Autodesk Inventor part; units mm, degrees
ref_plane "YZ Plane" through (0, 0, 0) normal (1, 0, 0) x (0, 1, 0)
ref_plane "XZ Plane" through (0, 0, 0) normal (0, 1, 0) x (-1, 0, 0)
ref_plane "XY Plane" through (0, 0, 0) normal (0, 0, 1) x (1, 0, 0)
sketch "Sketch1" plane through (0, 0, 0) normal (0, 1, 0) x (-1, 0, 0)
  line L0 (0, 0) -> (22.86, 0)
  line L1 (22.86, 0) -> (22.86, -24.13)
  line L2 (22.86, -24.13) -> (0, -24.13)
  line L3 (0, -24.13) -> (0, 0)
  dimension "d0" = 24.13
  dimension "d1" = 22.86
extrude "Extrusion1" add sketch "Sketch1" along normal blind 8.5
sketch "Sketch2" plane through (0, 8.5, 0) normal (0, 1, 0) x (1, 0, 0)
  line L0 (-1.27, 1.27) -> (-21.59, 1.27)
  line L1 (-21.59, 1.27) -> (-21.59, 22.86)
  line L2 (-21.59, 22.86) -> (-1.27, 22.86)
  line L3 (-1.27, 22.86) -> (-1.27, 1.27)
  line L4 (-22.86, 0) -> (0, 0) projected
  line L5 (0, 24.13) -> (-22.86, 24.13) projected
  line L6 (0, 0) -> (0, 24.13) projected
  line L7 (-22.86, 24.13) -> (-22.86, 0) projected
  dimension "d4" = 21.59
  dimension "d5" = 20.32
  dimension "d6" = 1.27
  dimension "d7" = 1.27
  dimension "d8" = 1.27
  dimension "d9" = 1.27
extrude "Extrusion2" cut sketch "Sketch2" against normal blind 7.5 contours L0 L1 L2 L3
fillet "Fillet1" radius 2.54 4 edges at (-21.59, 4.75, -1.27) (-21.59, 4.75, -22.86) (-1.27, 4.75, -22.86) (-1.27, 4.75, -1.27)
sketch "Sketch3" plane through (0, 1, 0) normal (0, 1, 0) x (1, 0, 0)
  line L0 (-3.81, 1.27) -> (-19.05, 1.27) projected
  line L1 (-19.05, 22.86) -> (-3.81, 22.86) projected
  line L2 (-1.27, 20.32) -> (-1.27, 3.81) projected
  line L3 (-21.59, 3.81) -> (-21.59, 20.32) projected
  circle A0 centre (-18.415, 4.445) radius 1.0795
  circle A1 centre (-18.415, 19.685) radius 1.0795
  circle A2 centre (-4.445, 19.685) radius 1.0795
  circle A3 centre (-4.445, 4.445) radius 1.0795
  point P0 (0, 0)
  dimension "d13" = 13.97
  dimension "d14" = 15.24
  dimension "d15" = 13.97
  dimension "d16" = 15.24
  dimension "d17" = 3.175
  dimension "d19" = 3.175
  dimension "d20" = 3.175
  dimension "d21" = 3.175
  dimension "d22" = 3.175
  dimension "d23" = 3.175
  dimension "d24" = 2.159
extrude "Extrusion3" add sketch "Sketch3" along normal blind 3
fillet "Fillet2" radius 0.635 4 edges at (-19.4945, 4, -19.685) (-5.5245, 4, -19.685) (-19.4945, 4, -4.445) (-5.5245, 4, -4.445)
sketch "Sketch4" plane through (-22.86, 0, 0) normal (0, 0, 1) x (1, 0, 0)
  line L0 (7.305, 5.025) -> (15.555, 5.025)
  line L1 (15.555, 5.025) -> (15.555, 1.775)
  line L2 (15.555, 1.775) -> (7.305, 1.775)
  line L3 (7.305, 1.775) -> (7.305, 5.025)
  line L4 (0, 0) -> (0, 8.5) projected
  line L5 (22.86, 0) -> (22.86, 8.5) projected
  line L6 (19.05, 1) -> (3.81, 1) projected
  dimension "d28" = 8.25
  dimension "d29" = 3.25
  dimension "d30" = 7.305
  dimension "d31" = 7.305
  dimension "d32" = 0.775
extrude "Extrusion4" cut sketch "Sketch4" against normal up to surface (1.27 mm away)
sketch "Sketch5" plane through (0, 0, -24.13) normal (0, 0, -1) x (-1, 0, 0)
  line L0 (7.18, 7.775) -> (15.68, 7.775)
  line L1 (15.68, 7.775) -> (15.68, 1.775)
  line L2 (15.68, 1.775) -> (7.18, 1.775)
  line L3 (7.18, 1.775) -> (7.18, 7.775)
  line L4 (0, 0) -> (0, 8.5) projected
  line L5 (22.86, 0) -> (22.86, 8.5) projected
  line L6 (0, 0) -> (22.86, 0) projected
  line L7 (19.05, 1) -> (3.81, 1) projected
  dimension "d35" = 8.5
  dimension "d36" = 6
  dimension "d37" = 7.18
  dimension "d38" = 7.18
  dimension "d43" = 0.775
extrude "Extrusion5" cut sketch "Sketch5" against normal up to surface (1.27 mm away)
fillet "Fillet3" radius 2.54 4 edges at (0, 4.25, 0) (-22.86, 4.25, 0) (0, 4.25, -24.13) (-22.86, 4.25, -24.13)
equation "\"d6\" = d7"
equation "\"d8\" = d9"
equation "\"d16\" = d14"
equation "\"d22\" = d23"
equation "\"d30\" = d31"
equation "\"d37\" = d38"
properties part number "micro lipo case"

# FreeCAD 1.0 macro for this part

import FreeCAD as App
import Part
import Sketcher
Q = App.Units.Quantity


def edges_at(feature, points):
    """Names of the edges that pass closest to the given points."""
    edges = feature.Shape.Edges
    near = lambda p: min(range(len(edges)), key=lambda i: edges[i].distToShape(Part.Vertex(*p))[0])
    return sorted({f"Edge{near(p) + 1}" for p in points})


def add_polygon(sketch, points):
    """Adds a closed chain of lines whose ends are joined by coincident constraints."""
    first, n = sketch.GeometryCount, len(points)
    for a, b in zip(points, points[1:] + points[:1]):
        sketch.addGeometry(Part.LineSegment(App.Vector(*a, 0), App.Vector(*b, 0)), False)
    for i in range(n):
        sketch.addConstraint(Sketcher.Constraint("Coincident", first + i, 2, first + (i + 1) % n, 1))

doc = App.newDocument("Part")
body = doc.addObject("PartDesign::Body", "Body")

# Sketch on XZ plane
sketch1 = body.newObject("Sketcher::SketchObject", "Sketch")
sketch1.AttachmentSupport = (doc.getObject("XZ_Plane"), [""])
sketch1.MapMode = "FlatFace"
add_polygon(sketch1, [(-22.86, 0), (0, 0), (0, -24.13), (-22.86, -24.13)])  # lines 0-3
sketch1.addConstraint(Sketcher.Constraint("Horizontal", 0))
sketch1.addConstraint(Sketcher.Constraint("Vertical", 1))
sketch1.addConstraint(Sketcher.Constraint("Horizontal", 2))
sketch1.addConstraint(Sketcher.Constraint("Vertical", 3))
sketch1.addConstraint(Sketcher.Constraint("Coincident", 0, 2, -1, 1))
sketch1.addConstraint(Sketcher.Constraint("DistanceX", 0, 1, 0, 2, Q("0.9 in")))
sketch1.addConstraint(Sketcher.Constraint("DistanceY", 1, 2, 1, 1, Q("0.95 in")))
pad1 = body.newObject("PartDesign::Pad", "Pad")
pad1.Profile = sketch1
pad1.Length = 8.5
pad1.Reversed = True

# Sketch on XZ plane
sketch2 = body.newObject("Sketcher::SketchObject", "Sketch001")
sketch2.AttachmentSupport = (doc.getObject("XZ_Plane"), [""])
sketch2.MapMode = "FlatFace"
sketch2.AttachmentOffset = App.Placement(App.Vector(0, 0, -8.5), App.Rotation())
add_polygon(sketch2, [(-21.59, -1.27), (-1.27, -1.27), (-1.27, -22.86), (-21.59, -22.86)])  # lines 0-3
sketch2.addConstraint(Sketcher.Constraint("Horizontal", 0))
sketch2.addConstraint(Sketcher.Constraint("Vertical", 1))
sketch2.addConstraint(Sketcher.Constraint("Horizontal", 2))
sketch2.addConstraint(Sketcher.Constraint("Vertical", 3))
sketch2.addConstraint(Sketcher.Constraint("DistanceX", 0, 1, 0, 2, Q("0.8 in")))
sketch2.addConstraint(Sketcher.Constraint("DistanceY", 1, 2, 1, 1, Q("0.85 in")))
sketch2.addConstraint(Sketcher.Constraint("DistanceX", 0, 2, -1, 1, Q("0.05 in")))
sketch2.addConstraint(Sketcher.Constraint("DistanceY", 0, 2, -1, 1, Q("0.05 in")))
pocket1 = body.newObject("PartDesign::Pocket", "Pocket")
pocket1.Profile = sketch2
pocket1.Length = 7.5
pocket1.Reversed = True
doc.recompute()

fillet = body.newObject("PartDesign::Fillet", "Fillet")
fillet.Base = (pocket1, edges_at(pocket1, [
    (-21.59, 4.75, -1.27),
    (-21.59, 4.75, -22.86),
    (-1.27, 4.75, -22.86),
    (-1.27, 4.75, -1.27),
]))
fillet.Radius = Q("0.1 in")

# Sketch on XZ plane
sketch3 = body.newObject("Sketcher::SketchObject", "Sketch002")
sketch3.AttachmentSupport = (doc.getObject("XZ_Plane"), [""])
sketch3.MapMode = "FlatFace"
sketch3.AttachmentOffset = App.Placement(App.Vector(0, 0, -1), App.Rotation())
sketch3.addGeometry(Part.Circle(App.Vector(-18.415, -4.445, 0), App.Vector(0, 0, 1), 1.0795), False)
sketch3.addGeometry(Part.Circle(App.Vector(-18.415, -19.685, 0), App.Vector(0, 0, 1), 1.0795), False)
sketch3.addGeometry(Part.Circle(App.Vector(-4.445, -19.685, 0), App.Vector(0, 0, 1), 1.0795), False)
sketch3.addGeometry(Part.Circle(App.Vector(-4.445, -4.445, 0), App.Vector(0, 0, 1), 1.0795), False)
sketch3.addConstraint(Sketcher.Constraint("Equal", 0, 1))
sketch3.addConstraint(Sketcher.Constraint("Equal", 1, 2))
sketch3.addConstraint(Sketcher.Constraint("Equal", 2, 3))
sketch3.addConstraint(Sketcher.Constraint("Horizontal", 1, 3, 2, 3))
sketch3.addConstraint(Sketcher.Constraint("Horizontal", 0, 3, 3, 3))
sketch3.addConstraint(Sketcher.Constraint("Vertical", 0, 3, 1, 3))
sketch3.addConstraint(Sketcher.Constraint("Vertical", 2, 3, 3, 3))
sketch3.addConstraint(Sketcher.Constraint("Diameter", 0, Q("0.085 in")))
sketch3.addConstraint(Sketcher.Constraint("DistanceY", 1, 3, 0, 3, Q("0.6 in")))
sketch3.addConstraint(Sketcher.Constraint("DistanceX", 1, 3, 2, 3, Q("0.55 in")))
sketch3.addConstraint(Sketcher.Constraint("DistanceX", 0, 3, -1, 1, Q("0.725 in")))
sketch3.addConstraint(Sketcher.Constraint("DistanceY", 0, 3, -1, 1, Q("0.175 in")))
pad2 = body.newObject("PartDesign::Pad", "Pad001")
pad2.Profile = sketch3
pad2.Length = Q("0.1181102 in")
pad2.Reversed = True
doc.recompute()

fillet2 = body.newObject("PartDesign::Fillet", "Fillet001")
fillet2.Base = (pad2, edges_at(pad2, [
    (-19.494, 4, -19.685),
    (-5.524, 4, -19.685),
    (-19.494, 4, -4.445),
    (-5.524, 4, -4.445),
]))
fillet2.Radius = Q("0.025 in")

# Sketch on XY plane
sketch4 = body.newObject("Sketcher::SketchObject", "Sketch003")
sketch4.AttachmentSupport = (doc.getObject("XY_Plane"), [""])
sketch4.MapMode = "FlatFace"
add_polygon(sketch4, [(-7.305, 5.025), (-15.555, 5.025), (-15.555, 1.775), (-7.305, 1.775)])  # lines 0-3
sketch4.addConstraint(Sketcher.Constraint("Horizontal", 0))
sketch4.addConstraint(Sketcher.Constraint("Vertical", 1))
sketch4.addConstraint(Sketcher.Constraint("Horizontal", 2))
sketch4.addConstraint(Sketcher.Constraint("Vertical", 3))
sketch4.addConstraint(Sketcher.Constraint("DistanceX", 0, 2, 0, 1, Q("0.3248 in")))
sketch4.addConstraint(Sketcher.Constraint("DistanceY", 1, 2, 1, 1, Q("3.25 mm")))
sketch4.addConstraint(Sketcher.Constraint("DistanceX", 2, 2, -1, 1, Q("0.2876 in")))
sketch4.addConstraint(Sketcher.Constraint("DistanceY", -1, 1, 0, 2, Q("5.025 mm")))
pocket2 = body.newObject("PartDesign::Pocket", "Pocket001")
pocket2.Profile = sketch4
pocket2.Length = Q("0.05 in")

# Sketch on XY plane
sketch5 = body.newObject("Sketcher::SketchObject", "Sketch004")
sketch5.AttachmentSupport = (doc.getObject("XY_Plane"), [""])
sketch5.MapMode = "FlatFace"
sketch5.AttachmentOffset = App.Placement(App.Vector(0, 0, -0.95 * 25.4), App.Rotation())
add_polygon(sketch5, [(-15.68, 7.775), (-7.18, 7.775), (-7.18, 1.775), (-15.68, 1.775)])  # lines 0-3
sketch5.addConstraint(Sketcher.Constraint("Horizontal", 0))
sketch5.addConstraint(Sketcher.Constraint("Vertical", 1))
sketch5.addConstraint(Sketcher.Constraint("Horizontal", 2))
sketch5.addConstraint(Sketcher.Constraint("Vertical", 3))
sketch5.addConstraint(Sketcher.Constraint("DistanceX", 0, 1, 0, 2, Q("8.5 mm")))
sketch5.addConstraint(Sketcher.Constraint("DistanceY", 1, 2, 1, 1, Q("6 mm")))
sketch5.addConstraint(Sketcher.Constraint("DistanceX", 0, 2, -1, 1, Q("7.18 mm")))
sketch5.addConstraint(Sketcher.Constraint("DistanceY", -1, 1, 0, 2, Q("0.3061 in")))
pocket3 = body.newObject("PartDesign::Pocket", "Pocket002")
pocket3.Profile = sketch5
pocket3.Length = Q("0.05 in")
pocket3.Reversed = True
doc.recompute()

fillet3 = body.newObject("PartDesign::Fillet", "Fillet002")
fillet3.Base = (pocket3, edges_at(pocket3, [
    (0, 4.25, 0),
    (-22.86, 4.25, 0),
    (0, 4.25, -24.13),
    (-22.86, 4.25, -24.13),
]))
fillet3.Radius = Q("0.1 in")

doc.recompute()
